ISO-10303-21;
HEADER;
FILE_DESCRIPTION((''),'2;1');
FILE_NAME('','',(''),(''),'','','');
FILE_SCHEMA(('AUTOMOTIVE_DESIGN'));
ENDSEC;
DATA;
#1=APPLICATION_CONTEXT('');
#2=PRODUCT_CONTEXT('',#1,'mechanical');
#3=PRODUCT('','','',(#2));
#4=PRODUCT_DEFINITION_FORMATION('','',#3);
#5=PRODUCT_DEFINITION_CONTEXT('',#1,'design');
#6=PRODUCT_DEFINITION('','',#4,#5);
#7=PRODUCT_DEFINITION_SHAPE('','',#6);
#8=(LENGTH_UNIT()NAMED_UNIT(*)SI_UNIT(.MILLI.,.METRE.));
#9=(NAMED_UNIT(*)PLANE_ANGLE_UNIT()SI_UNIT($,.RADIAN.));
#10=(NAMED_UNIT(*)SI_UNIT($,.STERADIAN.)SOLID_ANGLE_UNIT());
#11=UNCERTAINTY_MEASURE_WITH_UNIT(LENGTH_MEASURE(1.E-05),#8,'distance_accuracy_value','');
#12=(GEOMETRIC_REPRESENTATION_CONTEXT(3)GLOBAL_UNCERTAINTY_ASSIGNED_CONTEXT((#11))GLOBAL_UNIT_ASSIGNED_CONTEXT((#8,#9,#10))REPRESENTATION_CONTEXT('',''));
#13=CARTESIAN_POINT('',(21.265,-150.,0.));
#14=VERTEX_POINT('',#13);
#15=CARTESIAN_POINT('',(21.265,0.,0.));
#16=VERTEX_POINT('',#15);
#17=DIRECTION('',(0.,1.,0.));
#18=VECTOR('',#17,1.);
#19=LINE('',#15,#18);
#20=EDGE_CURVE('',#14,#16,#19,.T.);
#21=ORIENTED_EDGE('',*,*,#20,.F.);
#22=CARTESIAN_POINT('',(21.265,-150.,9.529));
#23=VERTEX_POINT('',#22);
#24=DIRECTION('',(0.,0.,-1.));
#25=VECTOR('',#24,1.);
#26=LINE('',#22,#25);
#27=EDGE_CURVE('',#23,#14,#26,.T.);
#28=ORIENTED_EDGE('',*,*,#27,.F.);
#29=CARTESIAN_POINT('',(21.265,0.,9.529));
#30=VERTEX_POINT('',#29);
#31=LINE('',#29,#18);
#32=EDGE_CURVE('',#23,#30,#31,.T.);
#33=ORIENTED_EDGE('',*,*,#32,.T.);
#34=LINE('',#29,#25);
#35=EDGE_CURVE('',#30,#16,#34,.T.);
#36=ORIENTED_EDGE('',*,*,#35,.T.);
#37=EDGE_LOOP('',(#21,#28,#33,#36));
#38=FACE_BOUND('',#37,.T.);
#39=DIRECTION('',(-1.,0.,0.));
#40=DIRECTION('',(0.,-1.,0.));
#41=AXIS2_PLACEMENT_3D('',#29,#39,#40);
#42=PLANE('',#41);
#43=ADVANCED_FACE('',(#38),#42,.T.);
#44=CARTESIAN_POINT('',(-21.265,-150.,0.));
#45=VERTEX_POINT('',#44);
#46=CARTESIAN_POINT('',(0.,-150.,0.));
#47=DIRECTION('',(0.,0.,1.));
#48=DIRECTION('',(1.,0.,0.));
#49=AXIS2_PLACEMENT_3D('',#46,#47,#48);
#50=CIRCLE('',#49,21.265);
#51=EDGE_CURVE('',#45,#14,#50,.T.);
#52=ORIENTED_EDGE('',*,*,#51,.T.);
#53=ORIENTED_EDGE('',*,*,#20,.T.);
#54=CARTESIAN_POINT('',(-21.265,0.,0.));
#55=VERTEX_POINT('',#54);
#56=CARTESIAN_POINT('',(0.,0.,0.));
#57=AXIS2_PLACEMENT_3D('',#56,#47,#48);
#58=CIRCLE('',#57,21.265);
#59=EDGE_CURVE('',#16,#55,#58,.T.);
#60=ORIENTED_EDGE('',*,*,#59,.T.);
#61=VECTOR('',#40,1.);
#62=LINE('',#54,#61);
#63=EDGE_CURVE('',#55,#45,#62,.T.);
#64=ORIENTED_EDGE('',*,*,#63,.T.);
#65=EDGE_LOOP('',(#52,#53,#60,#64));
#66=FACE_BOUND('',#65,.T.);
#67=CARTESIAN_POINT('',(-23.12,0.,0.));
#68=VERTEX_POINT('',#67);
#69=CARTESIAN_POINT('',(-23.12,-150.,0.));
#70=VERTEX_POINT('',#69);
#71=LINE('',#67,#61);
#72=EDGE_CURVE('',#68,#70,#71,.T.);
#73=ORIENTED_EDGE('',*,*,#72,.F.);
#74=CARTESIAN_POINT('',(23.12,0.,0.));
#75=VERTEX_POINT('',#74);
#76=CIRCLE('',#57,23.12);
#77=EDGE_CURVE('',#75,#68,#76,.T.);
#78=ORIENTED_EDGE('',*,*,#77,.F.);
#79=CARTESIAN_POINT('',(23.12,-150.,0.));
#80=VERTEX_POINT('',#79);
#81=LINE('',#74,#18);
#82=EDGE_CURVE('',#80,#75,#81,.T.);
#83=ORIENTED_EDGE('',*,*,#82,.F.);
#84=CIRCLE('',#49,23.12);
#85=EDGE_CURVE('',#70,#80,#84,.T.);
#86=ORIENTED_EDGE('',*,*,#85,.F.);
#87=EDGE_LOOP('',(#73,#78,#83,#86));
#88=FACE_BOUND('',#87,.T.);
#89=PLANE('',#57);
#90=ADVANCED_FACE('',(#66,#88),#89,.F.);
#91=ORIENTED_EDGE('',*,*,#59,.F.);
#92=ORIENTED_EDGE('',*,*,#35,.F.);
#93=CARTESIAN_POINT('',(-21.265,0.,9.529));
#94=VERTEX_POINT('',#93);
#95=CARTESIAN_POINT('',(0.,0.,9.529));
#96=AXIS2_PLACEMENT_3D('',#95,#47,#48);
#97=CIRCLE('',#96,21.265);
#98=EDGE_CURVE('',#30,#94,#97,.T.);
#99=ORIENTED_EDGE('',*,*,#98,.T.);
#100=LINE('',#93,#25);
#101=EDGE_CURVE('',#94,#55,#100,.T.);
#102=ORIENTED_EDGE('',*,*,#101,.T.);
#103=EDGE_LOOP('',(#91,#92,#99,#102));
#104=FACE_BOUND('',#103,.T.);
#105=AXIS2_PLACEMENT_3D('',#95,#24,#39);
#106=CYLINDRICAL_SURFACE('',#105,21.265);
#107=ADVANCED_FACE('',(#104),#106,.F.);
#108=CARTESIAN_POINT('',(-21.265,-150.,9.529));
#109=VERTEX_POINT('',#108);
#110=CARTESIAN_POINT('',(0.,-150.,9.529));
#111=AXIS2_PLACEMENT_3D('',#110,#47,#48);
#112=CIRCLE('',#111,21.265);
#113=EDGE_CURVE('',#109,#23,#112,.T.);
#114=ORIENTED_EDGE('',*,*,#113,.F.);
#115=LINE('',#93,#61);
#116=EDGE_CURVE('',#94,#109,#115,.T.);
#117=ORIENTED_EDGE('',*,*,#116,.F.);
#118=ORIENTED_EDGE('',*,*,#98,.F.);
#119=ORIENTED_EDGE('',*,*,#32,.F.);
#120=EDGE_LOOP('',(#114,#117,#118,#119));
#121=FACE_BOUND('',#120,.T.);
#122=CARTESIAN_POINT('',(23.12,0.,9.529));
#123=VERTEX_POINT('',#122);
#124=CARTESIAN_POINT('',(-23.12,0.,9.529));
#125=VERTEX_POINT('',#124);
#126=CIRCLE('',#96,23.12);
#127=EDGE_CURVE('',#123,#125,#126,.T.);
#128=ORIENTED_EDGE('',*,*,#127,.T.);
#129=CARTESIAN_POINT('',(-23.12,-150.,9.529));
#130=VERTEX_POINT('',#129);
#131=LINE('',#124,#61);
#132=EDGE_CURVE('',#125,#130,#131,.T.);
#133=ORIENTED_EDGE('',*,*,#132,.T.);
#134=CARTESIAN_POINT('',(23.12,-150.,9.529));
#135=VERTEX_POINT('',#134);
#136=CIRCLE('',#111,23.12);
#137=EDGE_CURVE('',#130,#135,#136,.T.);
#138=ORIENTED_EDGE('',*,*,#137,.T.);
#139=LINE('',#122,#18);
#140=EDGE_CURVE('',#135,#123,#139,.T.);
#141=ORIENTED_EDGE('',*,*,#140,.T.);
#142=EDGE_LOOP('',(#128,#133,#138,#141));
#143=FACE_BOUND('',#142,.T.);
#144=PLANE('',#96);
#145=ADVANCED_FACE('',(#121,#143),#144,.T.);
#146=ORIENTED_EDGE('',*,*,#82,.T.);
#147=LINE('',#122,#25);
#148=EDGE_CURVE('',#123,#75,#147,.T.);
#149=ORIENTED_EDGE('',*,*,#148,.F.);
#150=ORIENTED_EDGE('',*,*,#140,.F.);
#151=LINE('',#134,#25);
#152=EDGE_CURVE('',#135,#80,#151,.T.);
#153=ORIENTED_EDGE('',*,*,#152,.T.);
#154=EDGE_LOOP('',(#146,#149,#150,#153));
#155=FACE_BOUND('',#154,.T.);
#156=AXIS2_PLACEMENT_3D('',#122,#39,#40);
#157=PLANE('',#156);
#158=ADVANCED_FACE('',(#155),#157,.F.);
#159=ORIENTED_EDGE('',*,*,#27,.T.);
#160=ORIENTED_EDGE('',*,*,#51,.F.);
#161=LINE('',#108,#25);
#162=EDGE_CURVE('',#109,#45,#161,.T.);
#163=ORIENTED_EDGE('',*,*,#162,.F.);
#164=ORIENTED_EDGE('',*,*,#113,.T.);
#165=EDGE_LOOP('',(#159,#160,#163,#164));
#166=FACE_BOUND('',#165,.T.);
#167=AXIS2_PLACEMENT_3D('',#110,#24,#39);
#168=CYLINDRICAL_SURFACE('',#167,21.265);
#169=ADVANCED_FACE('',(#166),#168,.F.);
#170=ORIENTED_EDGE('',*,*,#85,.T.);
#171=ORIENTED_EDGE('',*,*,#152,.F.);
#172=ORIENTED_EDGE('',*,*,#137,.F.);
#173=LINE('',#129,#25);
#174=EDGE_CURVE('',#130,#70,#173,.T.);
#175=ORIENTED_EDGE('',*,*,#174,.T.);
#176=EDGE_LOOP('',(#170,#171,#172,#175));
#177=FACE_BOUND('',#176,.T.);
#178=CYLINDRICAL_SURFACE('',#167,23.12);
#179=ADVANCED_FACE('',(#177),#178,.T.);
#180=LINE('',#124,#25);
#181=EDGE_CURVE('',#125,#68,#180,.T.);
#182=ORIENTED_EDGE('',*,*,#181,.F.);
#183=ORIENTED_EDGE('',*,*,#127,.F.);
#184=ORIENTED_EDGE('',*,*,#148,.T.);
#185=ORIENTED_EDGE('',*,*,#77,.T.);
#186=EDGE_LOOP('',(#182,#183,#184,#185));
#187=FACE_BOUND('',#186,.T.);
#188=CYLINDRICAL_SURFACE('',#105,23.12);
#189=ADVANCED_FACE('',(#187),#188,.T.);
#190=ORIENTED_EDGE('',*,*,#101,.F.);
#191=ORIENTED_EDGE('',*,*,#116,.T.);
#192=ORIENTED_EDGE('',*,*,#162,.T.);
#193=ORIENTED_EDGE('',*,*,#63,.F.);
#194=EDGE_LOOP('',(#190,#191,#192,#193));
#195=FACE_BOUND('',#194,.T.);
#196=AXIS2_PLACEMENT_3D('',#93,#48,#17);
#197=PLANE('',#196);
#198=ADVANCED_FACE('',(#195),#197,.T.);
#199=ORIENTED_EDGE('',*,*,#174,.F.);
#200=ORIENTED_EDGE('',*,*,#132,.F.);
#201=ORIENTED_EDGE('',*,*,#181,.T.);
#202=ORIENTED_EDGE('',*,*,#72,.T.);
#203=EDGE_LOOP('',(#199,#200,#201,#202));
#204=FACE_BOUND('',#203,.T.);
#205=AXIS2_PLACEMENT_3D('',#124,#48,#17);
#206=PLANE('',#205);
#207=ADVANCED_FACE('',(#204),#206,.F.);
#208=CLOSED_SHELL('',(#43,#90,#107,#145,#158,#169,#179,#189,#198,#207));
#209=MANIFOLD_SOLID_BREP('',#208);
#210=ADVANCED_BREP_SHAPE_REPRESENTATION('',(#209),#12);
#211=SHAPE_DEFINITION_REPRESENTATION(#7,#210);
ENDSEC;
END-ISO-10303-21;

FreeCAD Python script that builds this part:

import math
import FreeCAD as App
import Part
import Sketcher

V = App.Vector
Q = App.Units.Quantity

doc = App.newDocument("Part")
body = doc.addObject("PartDesign::Body", "Body")

# Sketch on XY plane
sketch1 = body.newObject("Sketcher::SketchObject", "Sketch")
sketch1.AttachmentSupport = (doc.getObject("XY_Plane"), [""])
sketch1.MapMode = "FlatFace"
sketch1.addGeometry([
    Part.LineSegment(V(-23, 0, 0), V(-23, -150, 0)),  # 0
    Part.ArcOfCircle(Part.Circle(V(0, -150, 0), V(0, 0, 1), 23), math.radians(180), math.radians(360)),  # 1
    Part.LineSegment(V(23, -150, 0), V(23, 0, 0)),  # 2
    Part.ArcOfCircle(Part.Circle(V(0, 0, 0), V(0, 0, 1), 23), math.radians(0), math.radians(180)),  # 3
    Part.LineSegment(V(-21, -150, 0), V(-21, 0, 0)),  # 4
    Part.ArcOfCircle(Part.Circle(V(0, 0, 0), V(0, 0, 1), 21), math.radians(0), math.radians(180)),  # 5
    Part.LineSegment(V(21, 0, 0), V(21, -150, 0)),  # 6
    Part.ArcOfCircle(Part.Circle(V(0, -150, 0), V(0, 0, 1), 21), math.radians(180), math.radians(360)),  # 7
], False)
sketch1.addConstraint([
    Sketcher.Constraint("Tangent", 0, 2, 1, 1),
    Sketcher.Constraint("Tangent", 1, 2, 2, 1),
    Sketcher.Constraint("Tangent", 2, 2, 3, 1),
    Sketcher.Constraint("Tangent", 3, 2, 0, 1),
    Sketcher.Constraint("Tangent", 4, 2, 5, 2),
    Sketcher.Constraint("Tangent", 5, 1, 6, 1),
    Sketcher.Constraint("Tangent", 6, 2, 7, 2),
    Sketcher.Constraint("Tangent", 7, 1, 4, 1),
    Sketcher.Constraint("Vertical", 0),
    Sketcher.Constraint("Vertical", 2),
    Sketcher.Constraint("Vertical", 4),
    Sketcher.Constraint("Vertical", 6),
    Sketcher.Constraint("Coincident", 3, 3, -1, 1),
    Sketcher.Constraint("Coincident", 5, 3, -1, 1),
    Sketcher.Constraint("Horizontal", 7, 3, 0, 2),
    Sketcher.Constraint("DistanceY", 0, 2, 0, 1, Q("150 mm")),
    Sketcher.Constraint("Radius", 1, Q("23.12 mm")),
    Sketcher.Constraint("Radius", 5, Q("21.265 mm")),
])
pad1 = body.newObject("PartDesign::Pad", "Pad")
pad1.Profile = sketch1
pad1.Length = 9.529

doc.recompute()
